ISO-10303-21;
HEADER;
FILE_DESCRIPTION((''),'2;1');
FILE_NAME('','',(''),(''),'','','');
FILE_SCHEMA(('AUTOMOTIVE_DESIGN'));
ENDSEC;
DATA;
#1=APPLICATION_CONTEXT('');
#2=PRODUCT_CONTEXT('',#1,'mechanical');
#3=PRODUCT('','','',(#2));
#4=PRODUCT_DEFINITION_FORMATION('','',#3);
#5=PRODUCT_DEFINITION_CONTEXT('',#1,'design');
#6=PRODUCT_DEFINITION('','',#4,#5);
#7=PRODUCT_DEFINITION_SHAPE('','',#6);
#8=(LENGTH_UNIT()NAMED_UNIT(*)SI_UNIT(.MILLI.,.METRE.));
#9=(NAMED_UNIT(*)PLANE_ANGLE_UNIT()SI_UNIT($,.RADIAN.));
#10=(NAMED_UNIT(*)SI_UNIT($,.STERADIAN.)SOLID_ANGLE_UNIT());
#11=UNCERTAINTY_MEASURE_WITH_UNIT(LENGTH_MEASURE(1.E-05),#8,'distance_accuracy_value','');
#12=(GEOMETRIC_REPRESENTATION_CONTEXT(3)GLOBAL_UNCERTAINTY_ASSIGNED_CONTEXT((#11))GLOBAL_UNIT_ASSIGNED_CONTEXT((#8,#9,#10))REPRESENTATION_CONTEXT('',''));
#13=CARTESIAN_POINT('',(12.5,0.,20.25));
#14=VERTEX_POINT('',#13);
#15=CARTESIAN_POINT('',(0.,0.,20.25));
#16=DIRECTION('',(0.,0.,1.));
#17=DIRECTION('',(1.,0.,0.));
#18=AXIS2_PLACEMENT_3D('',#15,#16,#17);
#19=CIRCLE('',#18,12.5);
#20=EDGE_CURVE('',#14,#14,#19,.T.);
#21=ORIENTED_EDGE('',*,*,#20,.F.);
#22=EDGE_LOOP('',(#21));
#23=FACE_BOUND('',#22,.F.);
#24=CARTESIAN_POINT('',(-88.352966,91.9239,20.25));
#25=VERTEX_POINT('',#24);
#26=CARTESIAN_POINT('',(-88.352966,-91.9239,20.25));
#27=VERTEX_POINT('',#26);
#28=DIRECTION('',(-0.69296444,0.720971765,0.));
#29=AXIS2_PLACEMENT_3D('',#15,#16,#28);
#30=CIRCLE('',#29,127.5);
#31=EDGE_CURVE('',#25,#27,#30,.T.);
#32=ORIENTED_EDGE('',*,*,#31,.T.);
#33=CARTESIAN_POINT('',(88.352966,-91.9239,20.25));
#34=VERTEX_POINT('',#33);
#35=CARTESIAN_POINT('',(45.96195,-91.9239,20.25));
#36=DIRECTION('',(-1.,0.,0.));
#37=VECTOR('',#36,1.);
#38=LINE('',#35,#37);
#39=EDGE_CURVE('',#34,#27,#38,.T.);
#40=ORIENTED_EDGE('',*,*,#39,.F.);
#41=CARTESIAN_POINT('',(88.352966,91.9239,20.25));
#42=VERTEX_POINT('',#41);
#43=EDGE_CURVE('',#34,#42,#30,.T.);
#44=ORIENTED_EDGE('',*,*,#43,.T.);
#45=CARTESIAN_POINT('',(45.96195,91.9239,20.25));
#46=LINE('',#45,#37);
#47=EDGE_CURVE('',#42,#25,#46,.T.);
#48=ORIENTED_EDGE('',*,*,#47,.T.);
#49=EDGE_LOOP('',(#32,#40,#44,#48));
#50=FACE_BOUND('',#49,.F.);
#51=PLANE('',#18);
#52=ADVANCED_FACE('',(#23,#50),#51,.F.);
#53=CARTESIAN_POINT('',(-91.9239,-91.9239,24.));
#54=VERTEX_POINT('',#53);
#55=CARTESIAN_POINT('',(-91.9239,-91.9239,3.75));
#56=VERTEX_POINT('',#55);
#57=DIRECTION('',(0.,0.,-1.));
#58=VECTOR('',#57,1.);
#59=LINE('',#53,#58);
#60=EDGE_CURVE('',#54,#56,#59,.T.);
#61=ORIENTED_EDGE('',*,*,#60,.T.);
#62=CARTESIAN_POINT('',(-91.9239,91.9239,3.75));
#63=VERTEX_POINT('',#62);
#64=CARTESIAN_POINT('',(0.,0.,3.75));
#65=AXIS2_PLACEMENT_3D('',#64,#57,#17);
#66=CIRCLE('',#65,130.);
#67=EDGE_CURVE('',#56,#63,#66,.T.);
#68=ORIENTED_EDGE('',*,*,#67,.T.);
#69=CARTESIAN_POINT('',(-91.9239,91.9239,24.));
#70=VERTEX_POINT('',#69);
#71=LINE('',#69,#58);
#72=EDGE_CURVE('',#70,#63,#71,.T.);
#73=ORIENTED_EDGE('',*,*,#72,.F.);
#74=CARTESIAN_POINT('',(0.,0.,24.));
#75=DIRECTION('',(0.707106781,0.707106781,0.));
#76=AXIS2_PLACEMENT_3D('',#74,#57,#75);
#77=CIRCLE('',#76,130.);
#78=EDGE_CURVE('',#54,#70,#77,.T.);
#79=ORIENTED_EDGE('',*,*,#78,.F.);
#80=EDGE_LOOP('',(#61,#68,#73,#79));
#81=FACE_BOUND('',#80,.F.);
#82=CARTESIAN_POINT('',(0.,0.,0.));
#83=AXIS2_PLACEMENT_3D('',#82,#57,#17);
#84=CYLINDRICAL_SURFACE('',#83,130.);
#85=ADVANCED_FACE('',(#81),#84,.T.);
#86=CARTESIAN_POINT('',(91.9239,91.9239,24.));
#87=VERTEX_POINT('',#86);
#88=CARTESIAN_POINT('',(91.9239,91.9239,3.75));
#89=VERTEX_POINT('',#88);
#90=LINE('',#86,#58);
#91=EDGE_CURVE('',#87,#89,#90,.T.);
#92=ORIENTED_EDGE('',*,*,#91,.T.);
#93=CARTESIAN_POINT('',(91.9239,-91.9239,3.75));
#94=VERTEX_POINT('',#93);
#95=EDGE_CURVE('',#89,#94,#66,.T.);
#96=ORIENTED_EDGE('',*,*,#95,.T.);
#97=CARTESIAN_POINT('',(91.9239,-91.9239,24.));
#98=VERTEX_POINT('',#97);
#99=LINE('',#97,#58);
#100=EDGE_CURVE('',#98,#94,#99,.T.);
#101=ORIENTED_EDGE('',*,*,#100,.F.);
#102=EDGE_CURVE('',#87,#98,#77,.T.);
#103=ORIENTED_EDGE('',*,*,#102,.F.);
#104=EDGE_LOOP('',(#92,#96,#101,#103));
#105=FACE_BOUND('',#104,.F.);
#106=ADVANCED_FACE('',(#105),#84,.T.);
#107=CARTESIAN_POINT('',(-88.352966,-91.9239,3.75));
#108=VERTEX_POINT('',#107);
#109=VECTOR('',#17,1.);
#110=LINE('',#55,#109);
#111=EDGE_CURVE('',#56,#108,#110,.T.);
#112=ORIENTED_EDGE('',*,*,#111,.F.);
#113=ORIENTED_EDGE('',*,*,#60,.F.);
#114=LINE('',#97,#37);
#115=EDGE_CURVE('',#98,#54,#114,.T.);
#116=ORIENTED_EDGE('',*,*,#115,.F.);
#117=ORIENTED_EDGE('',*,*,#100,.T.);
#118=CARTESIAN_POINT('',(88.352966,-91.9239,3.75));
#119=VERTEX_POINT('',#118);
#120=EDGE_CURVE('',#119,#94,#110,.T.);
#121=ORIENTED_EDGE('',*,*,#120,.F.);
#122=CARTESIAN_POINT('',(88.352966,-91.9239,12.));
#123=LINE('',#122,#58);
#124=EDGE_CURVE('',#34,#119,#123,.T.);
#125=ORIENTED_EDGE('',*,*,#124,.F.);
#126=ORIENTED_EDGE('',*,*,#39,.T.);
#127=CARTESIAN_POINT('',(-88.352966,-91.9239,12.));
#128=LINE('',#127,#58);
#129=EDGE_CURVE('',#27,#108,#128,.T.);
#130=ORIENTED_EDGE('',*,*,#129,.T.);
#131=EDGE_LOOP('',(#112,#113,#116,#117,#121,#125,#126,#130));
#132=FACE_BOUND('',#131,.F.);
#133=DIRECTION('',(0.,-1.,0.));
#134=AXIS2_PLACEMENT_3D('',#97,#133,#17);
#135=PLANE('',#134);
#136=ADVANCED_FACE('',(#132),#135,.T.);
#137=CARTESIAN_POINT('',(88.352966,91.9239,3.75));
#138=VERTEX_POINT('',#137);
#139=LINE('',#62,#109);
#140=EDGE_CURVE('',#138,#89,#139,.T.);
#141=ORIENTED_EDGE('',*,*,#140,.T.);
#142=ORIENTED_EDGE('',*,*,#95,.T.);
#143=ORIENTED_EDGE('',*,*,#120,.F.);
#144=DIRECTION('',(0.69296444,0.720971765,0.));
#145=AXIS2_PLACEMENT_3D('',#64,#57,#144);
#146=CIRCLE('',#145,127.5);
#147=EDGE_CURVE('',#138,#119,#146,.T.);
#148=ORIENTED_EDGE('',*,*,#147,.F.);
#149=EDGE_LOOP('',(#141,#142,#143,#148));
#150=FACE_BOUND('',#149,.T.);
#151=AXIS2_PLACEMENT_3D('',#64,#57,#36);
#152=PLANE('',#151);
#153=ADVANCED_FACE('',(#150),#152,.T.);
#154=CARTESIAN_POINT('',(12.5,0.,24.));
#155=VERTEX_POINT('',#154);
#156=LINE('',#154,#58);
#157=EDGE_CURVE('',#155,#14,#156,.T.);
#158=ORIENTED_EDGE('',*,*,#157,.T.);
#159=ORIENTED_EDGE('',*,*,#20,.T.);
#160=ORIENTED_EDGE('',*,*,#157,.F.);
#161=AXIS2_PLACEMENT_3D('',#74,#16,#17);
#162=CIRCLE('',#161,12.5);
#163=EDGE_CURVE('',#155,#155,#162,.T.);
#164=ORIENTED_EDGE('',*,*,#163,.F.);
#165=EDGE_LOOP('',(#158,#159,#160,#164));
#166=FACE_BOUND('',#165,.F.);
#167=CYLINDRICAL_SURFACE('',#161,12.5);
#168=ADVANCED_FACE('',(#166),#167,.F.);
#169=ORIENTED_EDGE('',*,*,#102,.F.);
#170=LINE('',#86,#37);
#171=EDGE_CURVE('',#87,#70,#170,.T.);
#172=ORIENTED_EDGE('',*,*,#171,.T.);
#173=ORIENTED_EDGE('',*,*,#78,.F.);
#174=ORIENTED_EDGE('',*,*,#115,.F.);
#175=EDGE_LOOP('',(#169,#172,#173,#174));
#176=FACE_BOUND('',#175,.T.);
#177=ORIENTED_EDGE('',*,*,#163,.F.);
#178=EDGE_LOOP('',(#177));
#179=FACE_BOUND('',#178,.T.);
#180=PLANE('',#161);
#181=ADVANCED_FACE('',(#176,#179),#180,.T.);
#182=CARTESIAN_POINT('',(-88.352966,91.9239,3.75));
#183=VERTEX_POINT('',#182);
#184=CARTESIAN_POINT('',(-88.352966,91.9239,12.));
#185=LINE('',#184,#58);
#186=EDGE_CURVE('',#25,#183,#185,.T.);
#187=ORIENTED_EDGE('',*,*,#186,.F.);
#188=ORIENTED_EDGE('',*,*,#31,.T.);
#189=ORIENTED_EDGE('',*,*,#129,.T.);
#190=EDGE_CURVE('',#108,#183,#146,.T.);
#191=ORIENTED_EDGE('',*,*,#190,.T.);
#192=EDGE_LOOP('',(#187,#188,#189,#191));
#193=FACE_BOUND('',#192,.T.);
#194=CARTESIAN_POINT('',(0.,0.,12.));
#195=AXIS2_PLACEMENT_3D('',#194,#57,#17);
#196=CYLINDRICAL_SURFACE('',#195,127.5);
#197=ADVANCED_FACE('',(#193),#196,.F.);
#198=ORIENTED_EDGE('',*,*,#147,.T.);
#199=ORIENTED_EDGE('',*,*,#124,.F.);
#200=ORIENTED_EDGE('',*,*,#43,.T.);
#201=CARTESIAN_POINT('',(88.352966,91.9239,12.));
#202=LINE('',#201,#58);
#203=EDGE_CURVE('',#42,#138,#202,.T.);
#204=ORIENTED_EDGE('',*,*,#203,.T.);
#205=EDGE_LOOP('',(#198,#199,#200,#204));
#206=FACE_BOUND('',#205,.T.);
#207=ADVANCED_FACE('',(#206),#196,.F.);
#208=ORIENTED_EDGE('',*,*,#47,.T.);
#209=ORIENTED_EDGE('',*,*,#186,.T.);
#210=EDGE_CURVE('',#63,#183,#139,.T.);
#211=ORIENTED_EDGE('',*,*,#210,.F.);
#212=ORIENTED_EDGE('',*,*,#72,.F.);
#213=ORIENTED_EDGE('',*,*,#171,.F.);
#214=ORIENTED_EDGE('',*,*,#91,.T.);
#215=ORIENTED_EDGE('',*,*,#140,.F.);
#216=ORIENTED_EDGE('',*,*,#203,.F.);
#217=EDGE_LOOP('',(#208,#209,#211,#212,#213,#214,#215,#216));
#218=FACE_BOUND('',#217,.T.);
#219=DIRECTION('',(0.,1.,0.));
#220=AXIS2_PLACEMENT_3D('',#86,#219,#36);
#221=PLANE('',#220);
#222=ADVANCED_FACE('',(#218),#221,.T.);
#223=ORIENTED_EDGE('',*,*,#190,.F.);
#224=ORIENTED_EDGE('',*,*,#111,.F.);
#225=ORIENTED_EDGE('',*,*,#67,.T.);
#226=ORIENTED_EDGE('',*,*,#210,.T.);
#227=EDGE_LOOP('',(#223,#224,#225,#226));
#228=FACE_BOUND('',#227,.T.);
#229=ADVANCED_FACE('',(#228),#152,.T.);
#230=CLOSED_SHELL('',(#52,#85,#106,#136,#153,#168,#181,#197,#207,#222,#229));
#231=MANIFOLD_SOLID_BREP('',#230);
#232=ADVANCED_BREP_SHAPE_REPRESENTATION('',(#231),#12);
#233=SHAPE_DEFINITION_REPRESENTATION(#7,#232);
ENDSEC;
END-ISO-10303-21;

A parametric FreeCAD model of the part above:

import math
import FreeCAD as App
import Part
import Sketcher

V = App.Vector

doc = App.newDocument("Part")
body = doc.addObject("PartDesign::Body", "Body")

sketch1 = doc.addObject("Sketcher::SketchObject", "Sketch")
body.addObject(sketch1)
sketch1.AttachmentSupport = (doc.XY_Plane, [""])
sketch1.MapMode = "FlatFace"
sketch1.addGeometry(Part.Circle(V(0, 0, 0), V(0, 0, 1), 130), False)
sketch1.addConstraint(Sketcher.Constraint("Coincident", 0, 3, -1, 1))
sketch1.addConstraint(Sketcher.Constraint("Diameter", 0, 260.0))
pad1 = doc.addObject("PartDesign::Pad", "Pad")
body.addObject(pad1)
pad1.Profile = sketch1
pad1.Length = 24

sketch2 = doc.addObject("Sketcher::SketchObject", "Sketch001")
body.addObject(sketch2)
sketch2.AttachmentSupport = (doc.XY_Plane, [""])
sketch2.MapMode = "FlatFace"
sketch2.AttachmentOffset = App.Placement(V(0, 0, 12), App.Rotation())
sketch2.addGeometry(Part.Circle(V(0, 0, 0), V(0, 0, 1), 128), False)
sketch2.addConstraint(Sketcher.Constraint("Coincident", 0, 3, -1, 1))
sketch2.addConstraint(Sketcher.Constraint("Diameter", 0, 255.0))
pocket1 = doc.addObject("PartDesign::Pocket", "Pocket")
body.addObject(pocket1)
pocket1.Profile = sketch2
pocket1.Length = 16.5
pocket1.Midplane = True

sketch3 = doc.addObject("Sketcher::SketchObject", "Sketch002")
body.addObject(sketch3)
sketch3.AttachmentSupport = (doc.XY_Plane, [""])
sketch3.MapMode = "FlatFace"
sketch3.AttachmentOffset = App.Placement(V(0, 0, 24), App.Rotation())
sketch3.addGeometry(Part.Circle(V(0, 0, 0), V(0, 0, 1), 12), False)
sketch3.addConstraint(Sketcher.Constraint("Coincident", 0, 3, -1, 1))
sketch3.addConstraint(Sketcher.Constraint("Diameter", 0, 25.0))
pocket2 = doc.addObject("PartDesign::Pocket", "Pocket001")
body.addObject(pocket2)
pocket2.Profile = sketch3
pocket2.Length = 5

sketch4 = doc.addObject("Sketcher::SketchObject", "Sketch003")
body.addObject(sketch4)
sketch4.AttachmentSupport = (doc.XY_Plane, [""])
sketch4.MapMode = "FlatFace"
sketch4.AttachmentOffset = App.Placement(V(0, 0, 24), App.Rotation())
sketch4.addGeometry(Part.LineSegment(V(-92, 92, 0), V(92, 92, 0)), False)
sketch4.addGeometry(Part.ArcOfCircle(Part.Circle(V(0, 0, 0), V(0, 0, 1), 130), math.radians(45), math.radians(135)), False)
sketch4.addConstraint(Sketcher.Constraint("Coincident", 0, 1, 1, 2))
sketch4.addConstraint(Sketcher.Constraint("Coincident", 1, 1, 0, 2))
sketch4.addConstraint(Sketcher.Constraint("Horizontal", 0))
sketch4.addConstraint(Sketcher.Constraint("Coincident", 1, 3, -1, 1))
sketch4.addConstraint(Sketcher.Constraint("Radius", 1, 130.0))
sketch4.addConstraint(Sketcher.Constraint("DistanceX", 0, 1, 0, 2, 183.8478))
pocket3 = doc.addObject("PartDesign::Pocket", "Pocket002")
body.addObject(pocket3)
pocket3.Profile = sketch4
pocket3.Type = "ThroughAll"
doc.recompute()

mirrored = doc.addObject("PartDesign::Mirrored", "Mirrored")
body.addObject(mirrored)
mirrored.Originals = [pocket3]
mirrored.MirrorPlane = (doc.XZ_Plane, [""])
body.Tip = mirrored

sketch5 = doc.addObject("Sketcher::SketchObject", "Sketch004")
body.addObject(sketch5)
sketch5.AttachmentSupport = (doc.XY_Plane, [""])
sketch5.MapMode = "FlatFace"
sketch5.addGeometry(Part.LineSegment(V(92, -92, 0), V(-92, -92, 0)), False)
sketch5.addGeometry(Part.ArcOfCircle(Part.Circle(V(-92, 0, 0), V(0, 0, 1), 92), math.radians(90), math.radians(270)), False)
sketch5.addGeometry(Part.LineSegment(V(-92, 92, 0), V(92, 92, 0)), False)
sketch5.addGeometry(Part.ArcOfCircle(Part.Circle(V(92, 0, 0), V(0, 0, 1), 92), math.radians(-90), math.radians(90)), False)
sketch5.addConstraint(Sketcher.Constraint("Tangent", 0, 2, 1, 2))
sketch5.addConstraint(Sketcher.Constraint("Tangent", 1, 1, 2, 1))
sketch5.addConstraint(Sketcher.Constraint("Tangent", 2, 2, 3, 2))
sketch5.addConstraint(Sketcher.Constraint("Tangent", 3, 1, 0, 1))
sketch5.addConstraint(Sketcher.Constraint("Horizontal", 0))
sketch5.addConstraint(Sketcher.Constraint("Horizontal", 2))
sketch5.addConstraint(Sketcher.Constraint("Symmetric", 1, 3, 3, 3, -1, 1))
sketch5.addConstraint(Sketcher.Constraint("Radius", 1, 91.924))
sketch5.addConstraint(Sketcher.Constraint("DistanceX", 0, 2, 0, 1, 183.8478))
pocket4 = doc.addObject("PartDesign::Pocket", "Pocket003")
body.addObject(pocket4)
pocket4.Profile = sketch5
pocket4.Length = 3.75
pocket4.Reversed = True

doc.recompute()
